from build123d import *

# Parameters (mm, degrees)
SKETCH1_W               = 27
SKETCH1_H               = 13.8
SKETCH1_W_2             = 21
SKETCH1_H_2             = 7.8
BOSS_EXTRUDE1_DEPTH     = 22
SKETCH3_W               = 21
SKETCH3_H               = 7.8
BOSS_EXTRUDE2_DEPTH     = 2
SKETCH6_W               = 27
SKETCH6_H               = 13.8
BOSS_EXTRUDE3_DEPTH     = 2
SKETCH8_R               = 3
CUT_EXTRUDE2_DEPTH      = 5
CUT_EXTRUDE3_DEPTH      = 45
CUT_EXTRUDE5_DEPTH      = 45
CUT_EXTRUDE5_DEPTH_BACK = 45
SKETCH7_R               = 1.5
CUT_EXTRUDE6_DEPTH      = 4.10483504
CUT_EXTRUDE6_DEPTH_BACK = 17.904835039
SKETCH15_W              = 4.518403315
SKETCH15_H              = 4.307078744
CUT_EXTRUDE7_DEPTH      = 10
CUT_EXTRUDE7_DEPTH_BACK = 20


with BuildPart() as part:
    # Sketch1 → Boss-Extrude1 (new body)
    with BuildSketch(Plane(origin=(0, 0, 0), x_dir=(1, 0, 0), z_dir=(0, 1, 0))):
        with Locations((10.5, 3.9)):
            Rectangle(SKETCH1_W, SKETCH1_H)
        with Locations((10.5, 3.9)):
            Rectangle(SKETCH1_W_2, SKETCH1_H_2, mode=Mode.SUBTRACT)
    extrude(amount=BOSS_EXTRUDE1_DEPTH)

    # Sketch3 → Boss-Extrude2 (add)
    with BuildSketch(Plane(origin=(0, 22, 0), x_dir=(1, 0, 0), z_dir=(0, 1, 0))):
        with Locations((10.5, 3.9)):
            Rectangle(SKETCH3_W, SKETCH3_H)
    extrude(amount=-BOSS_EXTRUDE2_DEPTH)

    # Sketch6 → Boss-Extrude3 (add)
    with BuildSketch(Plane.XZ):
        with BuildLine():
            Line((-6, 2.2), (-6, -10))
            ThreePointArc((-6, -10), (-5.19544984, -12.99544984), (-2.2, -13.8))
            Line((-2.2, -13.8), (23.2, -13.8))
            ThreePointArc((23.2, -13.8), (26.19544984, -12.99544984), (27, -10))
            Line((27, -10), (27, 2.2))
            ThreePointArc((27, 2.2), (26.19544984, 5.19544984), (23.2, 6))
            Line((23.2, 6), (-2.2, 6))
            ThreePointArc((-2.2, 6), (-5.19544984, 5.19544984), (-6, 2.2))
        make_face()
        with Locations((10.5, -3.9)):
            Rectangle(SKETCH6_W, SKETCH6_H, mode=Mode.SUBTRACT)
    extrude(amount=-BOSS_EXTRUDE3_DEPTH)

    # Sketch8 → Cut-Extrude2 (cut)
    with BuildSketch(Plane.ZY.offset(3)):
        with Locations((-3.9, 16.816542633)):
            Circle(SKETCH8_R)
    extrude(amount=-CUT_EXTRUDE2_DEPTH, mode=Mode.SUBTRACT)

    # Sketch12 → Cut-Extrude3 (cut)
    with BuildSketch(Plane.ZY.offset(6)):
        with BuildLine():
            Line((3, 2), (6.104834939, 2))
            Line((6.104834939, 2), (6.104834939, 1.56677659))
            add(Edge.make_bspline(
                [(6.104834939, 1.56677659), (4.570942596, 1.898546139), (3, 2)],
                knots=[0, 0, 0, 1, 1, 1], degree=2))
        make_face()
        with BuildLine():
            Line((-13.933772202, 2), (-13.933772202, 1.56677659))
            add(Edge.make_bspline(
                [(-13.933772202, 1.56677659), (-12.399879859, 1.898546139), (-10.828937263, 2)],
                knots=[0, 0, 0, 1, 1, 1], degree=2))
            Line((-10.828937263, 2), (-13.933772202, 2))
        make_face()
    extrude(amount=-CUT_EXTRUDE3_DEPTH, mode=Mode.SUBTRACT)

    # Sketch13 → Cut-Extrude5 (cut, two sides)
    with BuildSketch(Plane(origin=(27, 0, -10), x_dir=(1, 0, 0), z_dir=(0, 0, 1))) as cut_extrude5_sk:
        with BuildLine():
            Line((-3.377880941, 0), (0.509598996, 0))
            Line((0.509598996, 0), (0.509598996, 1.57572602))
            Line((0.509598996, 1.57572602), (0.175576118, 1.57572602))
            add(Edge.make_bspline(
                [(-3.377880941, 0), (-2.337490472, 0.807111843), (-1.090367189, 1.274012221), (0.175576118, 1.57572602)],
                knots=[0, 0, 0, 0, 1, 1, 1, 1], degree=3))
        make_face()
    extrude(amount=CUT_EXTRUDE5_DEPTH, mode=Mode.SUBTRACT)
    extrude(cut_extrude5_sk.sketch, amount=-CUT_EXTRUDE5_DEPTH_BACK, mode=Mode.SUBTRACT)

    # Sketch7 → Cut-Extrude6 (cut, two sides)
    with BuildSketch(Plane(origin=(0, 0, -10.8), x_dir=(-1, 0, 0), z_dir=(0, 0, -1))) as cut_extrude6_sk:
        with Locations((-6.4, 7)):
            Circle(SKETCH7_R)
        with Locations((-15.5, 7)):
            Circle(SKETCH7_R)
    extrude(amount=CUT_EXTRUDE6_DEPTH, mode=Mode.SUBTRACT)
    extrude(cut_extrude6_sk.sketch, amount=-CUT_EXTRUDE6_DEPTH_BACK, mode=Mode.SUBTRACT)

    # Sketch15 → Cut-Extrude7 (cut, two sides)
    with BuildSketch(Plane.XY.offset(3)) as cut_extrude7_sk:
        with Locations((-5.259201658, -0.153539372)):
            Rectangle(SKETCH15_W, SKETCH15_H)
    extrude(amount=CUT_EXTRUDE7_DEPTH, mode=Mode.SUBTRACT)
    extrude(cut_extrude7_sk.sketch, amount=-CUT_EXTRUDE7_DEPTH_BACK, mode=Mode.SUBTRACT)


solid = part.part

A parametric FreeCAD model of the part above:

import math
import FreeCAD as App
import Part
import Sketcher
Q = App.Units.Quantity

doc = App.newDocument("Part")
params = doc.addObject("Spreadsheet::Sheet", "Params")
for row, (alias, value) in enumerate([
    ("sketch1_width", "27 mm"),
    ("sketch1_width2", "21 mm"),
    ("sketch1_height", "13.8 mm"),
    ("sketch1_height2", "7.8 mm"),
    ("pad1_length", "22 mm"),
    ("sketch2_width", "21 mm"),
    ("sketch2_height", "7.8 mm"),
    ("pad2_length", "2 mm"),
    ("sketch3_width", "27 mm"),
    ("sketch3_width2", "25.4 mm"),
    ("sketch3_height", "12.2 mm"),
    ("sketch3_height2", "13.8 mm"),
    ("pad3_length", "2 mm"),
    ("sketch4_diameter", "6 mm"),
    ("pocket1_length", "5 mm"),
    ("pocket2_length", "45 mm"),
    ("sketch7_diameter", "3 mm"),
], start=1):
    params.set(f"A{row}", alias)
    params.set(f"B{row}", "=" + value)
    params.setAlias(f"B{row}", alias)

body = doc.addObject("PartDesign::Body", "Body")

# Sketch on XZ plane
sketch1 = doc.addObject("Sketcher::SketchObject", "Sketch")
body.addObject(sketch1)
sketch1.AttachmentSupport = (doc.XZ_Plane, [""])
sketch1.MapMode = "FlatFace"
sketch1.addGeometry([
    Part.LineSegment(App.Vector(-3, -11, 0), App.Vector(-3, 3, 0)),  # 0
    Part.LineSegment(App.Vector(-3, 3, 0), App.Vector(24, 3, 0)),  # 1
    Part.LineSegment(App.Vector(24, 3, 0), App.Vector(24, -11, 0)),  # 2
    Part.LineSegment(App.Vector(24, -11, 0), App.Vector(-3, -11, 0)),  # 3
    Part.LineSegment(App.Vector(21, 0, 0), App.Vector(0, 0, 0)),  # 4
    Part.LineSegment(App.Vector(0, 0, 0), App.Vector(0, -8, 0)),  # 5
    Part.LineSegment(App.Vector(0, -8, 0), App.Vector(21, -8, 0)),  # 6
    Part.LineSegment(App.Vector(21, -8, 0), App.Vector(21, 0, 0)),  # 7
], False)
sketch1.addConstraint([
    Sketcher.Constraint("Coincident", 0, 2, 1, 1),
    Sketcher.Constraint("Coincident", 1, 2, 2, 1),
    Sketcher.Constraint("Coincident", 2, 2, 3, 1),
    Sketcher.Constraint("Coincident", 3, 2, 0, 1),
    Sketcher.Constraint("Coincident", 4, 2, 5, 1),
    Sketcher.Constraint("Coincident", 5, 2, 6, 1),
    Sketcher.Constraint("Coincident", 6, 2, 7, 1),
    Sketcher.Constraint("Coincident", 7, 2, 4, 1),
    Sketcher.Constraint("Vertical", 0),
    Sketcher.Constraint("Horizontal", 1),
    Sketcher.Constraint("Vertical", 2),
    Sketcher.Constraint("Horizontal", 3),
    Sketcher.Constraint("Horizontal", 4),
    Sketcher.Constraint("Vertical", 5),
    Sketcher.Constraint("Horizontal", 6),
    Sketcher.Constraint("Vertical", 7),
    Sketcher.Constraint("Coincident", 4, 2, -1, 1),
    Sketcher.Constraint("DistanceX", 1, 1, 1, 2, Q("27 mm")),
    Sketcher.Constraint("DistanceX", 4, 2, 4, 1, Q("21 mm")),
    Sketcher.Constraint("DistanceY", 0, 1, 0, 2, Q("13.8 mm")),
    Sketcher.Constraint("DistanceY", 5, 2, 5, 1, Q("7.8 mm")),
    Sketcher.Constraint("DistanceX", 0, 2, -1, 1, Q("3 mm")),
    Sketcher.Constraint("DistanceY", -1, 1, 0, 2, Q("3 mm")),
])
sketch1.setExpression("Constraints[17]", "Params.sketch1_width")
sketch1.setExpression("Constraints[18]", "Params.sketch1_width2")
sketch1.setExpression("Constraints[19]", "Params.sketch1_height")
sketch1.setExpression("Constraints[20]", "Params.sketch1_height2")
pad1 = doc.addObject("PartDesign::Pad", "Pad")
body.addObject(pad1)
pad1.Profile = sketch1
pad1.setExpression("Length", "Params.pad1_length")
pad1.Reversed = True

# Sketch on XZ plane
sketch2 = doc.addObject("Sketcher::SketchObject", "Sketch001")
body.addObject(sketch2)
sketch2.AttachmentSupport = (doc.XZ_Plane, [""])
sketch2.MapMode = "FlatFace"
sketch2.AttachmentOffset = App.Placement(App.Vector(0, 0, -22), App.Rotation())
sketch2.addGeometry([
    Part.LineSegment(App.Vector(0, -8, 0), App.Vector(0, 0, 0)),
    Part.LineSegment(App.Vector(0, 0, 0), App.Vector(21, 0, 0)),
    Part.LineSegment(App.Vector(21, 0, 0), App.Vector(21, -8, 0)),
    Part.LineSegment(App.Vector(21, -8, 0), App.Vector(0, -8, 0)),
], False)
sketch2.addConstraint([
    Sketcher.Constraint("Coincident", 0, 2, 1, 1),
    Sketcher.Constraint("Coincident", 1, 2, 2, 1),
    Sketcher.Constraint("Coincident", 2, 2, 3, 1),
    Sketcher.Constraint("Coincident", 3, 2, 0, 1),
    Sketcher.Constraint("Vertical", 0),
    Sketcher.Constraint("Horizontal", 1),
    Sketcher.Constraint("Vertical", 2),
    Sketcher.Constraint("Horizontal", 3),
    Sketcher.Constraint("Coincident", 0, 2, -1, 1),
    Sketcher.Constraint("DistanceX", 1, 1, 1, 2, Q("21 mm")),
    Sketcher.Constraint("DistanceY", 0, 1, 0, 2, Q("7.8 mm")),
])
sketch2.setExpression("Constraints[9]", "Params.sketch2_width")
sketch2.setExpression("Constraints[10]", "Params.sketch2_height")
pad2 = doc.addObject("PartDesign::Pad", "Pad001")
body.addObject(pad2)
pad2.Profile = sketch2
pad2.setExpression("Length", "Params.pad2_length")

# Sketch on XZ plane
sketch3 = doc.addObject("Sketcher::SketchObject", "Sketch002")
body.addObject(sketch3)
sketch3.AttachmentSupport = (doc.XZ_Plane, [""])
sketch3.MapMode = "FlatFace"
sketch3.addGeometry([
    Part.LineSegment(App.Vector(-6, 2.2, 0), App.Vector(-6, -10, 0)),  # 0
    Part.ArcOfCircle(Part.Circle(App.Vector(-3, -10.8, 0), App.Vector(0, 0, 1), 3.1), math.radians(165), math.radians(285)),  # 1
    Part.LineSegment(App.Vector(-2.2, -13.8, 0), App.Vector(23.2, -13.8, 0)),  # 2
    Part.ArcOfCircle(Part.Circle(App.Vector(24, -10.8, 0), App.Vector(0, 0, 1), 3.1), math.radians(-105), math.radians(15)),  # 3
    Part.LineSegment(App.Vector(27, -10, 0), App.Vector(27, 2.2, 0)),  # 4
    Part.ArcOfCircle(Part.Circle(App.Vector(24, 3, 0), App.Vector(0, 0, 1), 3.1), math.radians(-15), math.radians(105)),  # 5
    Part.LineSegment(App.Vector(23.2, 6, 0), App.Vector(-2.2, 6, 0)),  # 6
    Part.ArcOfCircle(Part.Circle(App.Vector(-3, 3, 0), App.Vector(0, 0, 1), 3.1), math.radians(75), math.radians(195)),  # 7
    Part.LineSegment(App.Vector(24, -10.8, 0), App.Vector(-3, -10.8, 0)),  # 8
    Part.LineSegment(App.Vector(-3, -10.8, 0), App.Vector(-3, 3, 0)),  # 9
    Part.LineSegment(App.Vector(-3, 3, 0), App.Vector(24, 3, 0)),  # 10
    Part.LineSegment(App.Vector(24, 3, 0), App.Vector(24, -10.8, 0)),  # 11
], False)
sketch3.addConstraint([
    Sketcher.Constraint("Coincident", 0, 2, 1, 1),
    Sketcher.Constraint("Coincident", 1, 2, 2, 1),
    Sketcher.Constraint("Coincident", 2, 2, 3, 1),
    Sketcher.Constraint("Coincident", 3, 2, 4, 1),
    Sketcher.Constraint("Coincident", 4, 2, 5, 1),
    Sketcher.Constraint("Coincident", 5, 2, 6, 1),
    Sketcher.Constraint("Coincident", 6, 2, 7, 1),
    Sketcher.Constraint("Coincident", 7, 2, 0, 1),
    Sketcher.Constraint("Coincident", 8, 2, 9, 1),
    Sketcher.Constraint("Coincident", 9, 2, 10, 1),
    Sketcher.Constraint("Coincident", 10, 2, 11, 1),
    Sketcher.Constraint("Coincident", 11, 2, 8, 1),
    Sketcher.Constraint("Vertical", 0),
    Sketcher.Constraint("Horizontal", 2),
    Sketcher.Constraint("Vertical", 4),
    Sketcher.Constraint("Horizontal", 6),
    Sketcher.Constraint("Horizontal", 8),
    Sketcher.Constraint("Vertical", 9),
    Sketcher.Constraint("Horizontal", 10),
    Sketcher.Constraint("Vertical", 11),
    Sketcher.Constraint("Coincident", 8, 2, 1, 3),
    Sketcher.Constraint("Coincident", 9, 2, 7, 3),
    Sketcher.Constraint("Coincident", 10, 2, 5, 3),
    Sketcher.Constraint("Coincident", 11, 2, 3, 3),
    Sketcher.Constraint("Equal", 1, 3),
    Sketcher.Constraint("Equal", 3, 5),
    Sketcher.Constraint("Equal", 5, 7),
    Sketcher.Constraint("Horizontal", 0, 2, 3, 2),
    Sketcher.Constraint("Vertical", 2, 2, 5, 2),
    Sketcher.Constraint("DistanceX", 8, 2, 8, 1, Q("27 mm")),
    Sketcher.Constraint("DistanceX", 2, 1, 2, 2, Q("25.4 mm")),
    Sketcher.Constraint("DistanceY", 0, 2, 0, 1, Q("12.2 mm")),
    Sketcher.Constraint("DistanceY", 9, 1, 9, 2, Q("13.8 mm")),
    Sketcher.Constraint("DistanceX", 1, 3, -1, 1, Q("3 mm")),
    Sketcher.Constraint("DistanceY", -1, 1, 5, 3, Q("3 mm")),
    Sketcher.Constraint("DistanceX", 0, 2, -1, 1, Q("6 mm")),
])
sketch3.setExpression("Constraints[29]", "Params.sketch3_width")
sketch3.setExpression("Constraints[30]", "Params.sketch3_width2")
sketch3.setExpression("Constraints[31]", "Params.sketch3_height")
sketch3.setExpression("Constraints[32]", "Params.sketch3_height2")
pad3 = doc.addObject("PartDesign::Pad", "Pad002")
body.addObject(pad3)
pad3.Profile = sketch3
pad3.setExpression("Length", "Params.pad3_length")
pad3.Reversed = True

# Sketch on YZ plane
sketch4 = doc.addObject("Sketcher::SketchObject", "Sketch003")
body.addObject(sketch4)
sketch4.AttachmentSupport = (doc.YZ_Plane, [""])
sketch4.MapMode = "FlatFace"
sketch4.AttachmentOffset = App.Placement(App.Vector(0, 0, -3), App.Rotation())
sketch4.addGeometry(Part.Circle(App.Vector(16.8, -3.9, 0), App.Vector(0, 0, 1), 3), False)
sketch4.addConstraint([
    Sketcher.Constraint("Diameter", 0, Q("6 mm")),
    Sketcher.Constraint("DistanceY", 0, 3, -1, 1, Q("3.9 mm")),
    Sketcher.Constraint("DistanceX", -1, 1, 0, 3, Q("16.816543 mm")),
])
sketch4.setExpression("Constraints[0]", "Params.sketch4_diameter")
pocket1 = doc.addObject("PartDesign::Pocket", "Pocket")
body.addObject(pocket1)
pocket1.Profile = sketch4
pocket1.setExpression("Length", "Params.pocket1_length")
pocket1.Reversed = True

# Sketch on YZ plane
sketch5 = doc.addObject("Sketcher::SketchObject", "Sketch004")
body.addObject(sketch5)
sketch5.AttachmentSupport = (doc.YZ_Plane, [""])
sketch5.MapMode = "FlatFace"
sketch5.AttachmentOffset = App.Placement(App.Vector(0, 0, -6), App.Rotation())
sketch5.addGeometry([
    Part.LineSegment(App.Vector(2, 6.104835, 0), App.Vector(2, 3, 0)),  # 0
    Part.BSplineCurve([App.Vector(1.566777, 6.104835, 0), App.Vector(1.898546, 4.570943, 0), App.Vector(2, 3, 0)], [3, 3], [0, 1], False, 2, [1, 1, 1], False),  # 1
    Part.LineSegment(App.Vector(1.566777, 6.104835, 0), App.Vector(2, 6.104835, 0)),  # 2
    Part.LineSegment(App.Vector(2, -13.933772, 0), App.Vector(1.566777, -13.933772, 0)),  # 3
    Part.BSplineCurve([App.Vector(1.566777, -13.933772, 0), App.Vector(1.898546, -12.39988, 0), App.Vector(2, -10.828937, 0)], [3, 3], [0, 1], False, 2, [1, 1, 1], False),  # 4
    Part.LineSegment(App.Vector(2, -10.828937, 0), App.Vector(2, -13.933772, 0)),  # 5
], False)
sketch5.addConstraint([
    Sketcher.Constraint("Block", 1),
    Sketcher.Constraint("Block", 4),
    Sketcher.Constraint("Coincident", 0, 2, 1, 2),
    Sketcher.Constraint("Coincident", 1, 1, 2, 1),
    Sketcher.Constraint("Coincident", 2, 2, 0, 1),
    Sketcher.Constraint("Coincident", 3, 2, 4, 1),
    Sketcher.Constraint("Coincident", 4, 2, 5, 1),
    Sketcher.Constraint("Coincident", 5, 2, 3, 1),
    Sketcher.Constraint("Vertical", 0),
    Sketcher.Constraint("Horizontal", 2),
    Sketcher.Constraint("Horizontal", 3),
    Sketcher.Constraint("Vertical", 5),
])
pocket2 = doc.addObject("PartDesign::Pocket", "Pocket001")
body.addObject(pocket2)
pocket2.Profile = sketch5
pocket2.setExpression("Length", "Params.pocket2_length")
pocket2.Reversed = True

# Sketch on XY plane
sketch6 = doc.addObject("Sketcher::SketchObject", "Sketch005")
body.addObject(sketch6)
sketch6.AttachmentSupport = (doc.XY_Plane, [""])
sketch6.MapMode = "FlatFace"
sketch6.AttachmentOffset = App.Placement(App.Vector(0, 0, -10), App.Rotation())
sketch6.addGeometry([
    Part.LineSegment(App.Vector(23.622119, 0, 0), App.Vector(27.509599, 0, 0)),
    Part.LineSegment(App.Vector(27.509599, 0, 0), App.Vector(27.509599, 1.575726, 0)),
    Part.LineSegment(App.Vector(27.509599, 1.575726, 0), App.Vector(27.175576, 1.575726, 0)),
    Part.BSplineCurve([App.Vector(23.622119, 0, 0), App.Vector(24.66251, 0.807112, 0), App.Vector(25.909633, 1.274012, 0), App.Vector(27.175576, 1.575726, 0)], [4, 4], [0, 1], False, 3, [1, 1, 1, 1], False),
], False)
sketch6.addConstraint([
    Sketcher.Constraint("Block", 3),
    Sketcher.Constraint("Coincident", 0, 2, 1, 1),
    Sketcher.Constraint("Coincident", 1, 2, 2, 1),
    Sketcher.Constraint("Coincident", 2, 2, 3, 2),
    Sketcher.Constraint("Coincident", 3, 1, 0, 1),
    Sketcher.Constraint("Horizontal", 0),
    Sketcher.Constraint("Vertical", 1),
    Sketcher.Constraint("Horizontal", 2),
    Sketcher.Constraint("DistanceX", 0, 1, 0, 2, Q("3.88748 mm")),
])
pocket3 = doc.addObject("PartDesign::Pocket", "Pocket002")
body.addObject(pocket3)
pocket3.Profile = sketch6
pocket3.Type = "ThroughAll"
pocket3.Midplane = True

# Sketch on XY plane
sketch7 = doc.addObject("Sketcher::SketchObject", "Sketch006")
body.addObject(sketch7)
sketch7.AttachmentSupport = (doc.XY_Plane, [""])
sketch7.MapMode = "FlatFace"
sketch7.AttachmentOffset = App.Placement(App.Vector(0, 0, -10.8), App.Rotation())
sketch7.addGeometry([
    Part.Circle(App.Vector(6.4, 7, 0), App.Vector(0, 0, 1), 1.5),
    Part.Circle(App.Vector(15.5, 7, 0), App.Vector(0, 0, 1), 1.5),
], False)
sketch7.addConstraint([
    Sketcher.Constraint("Equal", 0, 1),
    Sketcher.Constraint("Horizontal", 0, 3, 1, 3),
    Sketcher.Constraint("Diameter", 0, Q("3 mm")),
    Sketcher.Constraint("DistanceY", -1, 1, 0, 3, Q("7 mm")),
    Sketcher.Constraint("DistanceX", -1, 1, 0, 3, Q("6.4 mm")),
    Sketcher.Constraint("DistanceX", -1, 1, 1, 3, Q("15.5 mm")),
])
sketch7.setExpression("Constraints[2]", "Params.sketch7_diameter")
pocket4 = doc.addObject("PartDesign::Pocket", "Pocket003")
body.addObject(pocket4)
pocket4.Profile = sketch7
pocket4.Type = "ThroughAll"
pocket4.Midplane = True

# Sketch on XY plane
sketch8 = doc.addObject("Sketcher::SketchObject", "Sketch007")
body.addObject(sketch8)
sketch8.AttachmentSupport = (doc.XY_Plane, [""])
sketch8.MapMode = "FlatFace"
sketch8.AttachmentOffset = App.Placement(App.Vector(0, 0, 3), App.Rotation())
sketch8.addGeometry([
    Part.LineSegment(App.Vector(-7.5, 2, 0), App.Vector(-7.5, -2.3, 0)),
    Part.LineSegment(App.Vector(-7.5, -2.3, 0), App.Vector(-3, -2.3, 0)),
    Part.LineSegment(App.Vector(-3, -2.3, 0), App.Vector(-3, 2, 0)),
    Part.LineSegment(App.Vector(-3, 2, 0), App.Vector(-7.5, 2, 0)),
], False)
sketch8.addConstraint([
    Sketcher.Constraint("Coincident", 0, 2, 1, 1),
    Sketcher.Constraint("Coincident", 1, 2, 2, 1),
    Sketcher.Constraint("Coincident", 2, 2, 3, 1),
    Sketcher.Constraint("Coincident", 3, 2, 0, 1),
    Sketcher.Constraint("Vertical", 0),
    Sketcher.Constraint("Horizontal", 1),
    Sketcher.Constraint("Vertical", 2),
    Sketcher.Constraint("Horizontal", 3),
    Sketcher.Constraint("DistanceX", 1, 2, -1, 1, Q("3 mm")),
    Sketcher.Constraint("DistanceY", -1, 1, 2, 2, Q("2 mm")),
    Sketcher.Constraint("DistanceY", 0, 2, 0, 1, Q("4.307079 mm")),
    Sketcher.Constraint("DistanceX", 1, 1, 1, 2, Q("4.518403 mm")),
])
pocket5 = doc.addObject("PartDesign::Pocket", "Pocket004")
body.addObject(pocket5)
pocket5.Profile = sketch8
pocket5.Type = "ThroughAll"
pocket5.Midplane = True

doc.recompute()
